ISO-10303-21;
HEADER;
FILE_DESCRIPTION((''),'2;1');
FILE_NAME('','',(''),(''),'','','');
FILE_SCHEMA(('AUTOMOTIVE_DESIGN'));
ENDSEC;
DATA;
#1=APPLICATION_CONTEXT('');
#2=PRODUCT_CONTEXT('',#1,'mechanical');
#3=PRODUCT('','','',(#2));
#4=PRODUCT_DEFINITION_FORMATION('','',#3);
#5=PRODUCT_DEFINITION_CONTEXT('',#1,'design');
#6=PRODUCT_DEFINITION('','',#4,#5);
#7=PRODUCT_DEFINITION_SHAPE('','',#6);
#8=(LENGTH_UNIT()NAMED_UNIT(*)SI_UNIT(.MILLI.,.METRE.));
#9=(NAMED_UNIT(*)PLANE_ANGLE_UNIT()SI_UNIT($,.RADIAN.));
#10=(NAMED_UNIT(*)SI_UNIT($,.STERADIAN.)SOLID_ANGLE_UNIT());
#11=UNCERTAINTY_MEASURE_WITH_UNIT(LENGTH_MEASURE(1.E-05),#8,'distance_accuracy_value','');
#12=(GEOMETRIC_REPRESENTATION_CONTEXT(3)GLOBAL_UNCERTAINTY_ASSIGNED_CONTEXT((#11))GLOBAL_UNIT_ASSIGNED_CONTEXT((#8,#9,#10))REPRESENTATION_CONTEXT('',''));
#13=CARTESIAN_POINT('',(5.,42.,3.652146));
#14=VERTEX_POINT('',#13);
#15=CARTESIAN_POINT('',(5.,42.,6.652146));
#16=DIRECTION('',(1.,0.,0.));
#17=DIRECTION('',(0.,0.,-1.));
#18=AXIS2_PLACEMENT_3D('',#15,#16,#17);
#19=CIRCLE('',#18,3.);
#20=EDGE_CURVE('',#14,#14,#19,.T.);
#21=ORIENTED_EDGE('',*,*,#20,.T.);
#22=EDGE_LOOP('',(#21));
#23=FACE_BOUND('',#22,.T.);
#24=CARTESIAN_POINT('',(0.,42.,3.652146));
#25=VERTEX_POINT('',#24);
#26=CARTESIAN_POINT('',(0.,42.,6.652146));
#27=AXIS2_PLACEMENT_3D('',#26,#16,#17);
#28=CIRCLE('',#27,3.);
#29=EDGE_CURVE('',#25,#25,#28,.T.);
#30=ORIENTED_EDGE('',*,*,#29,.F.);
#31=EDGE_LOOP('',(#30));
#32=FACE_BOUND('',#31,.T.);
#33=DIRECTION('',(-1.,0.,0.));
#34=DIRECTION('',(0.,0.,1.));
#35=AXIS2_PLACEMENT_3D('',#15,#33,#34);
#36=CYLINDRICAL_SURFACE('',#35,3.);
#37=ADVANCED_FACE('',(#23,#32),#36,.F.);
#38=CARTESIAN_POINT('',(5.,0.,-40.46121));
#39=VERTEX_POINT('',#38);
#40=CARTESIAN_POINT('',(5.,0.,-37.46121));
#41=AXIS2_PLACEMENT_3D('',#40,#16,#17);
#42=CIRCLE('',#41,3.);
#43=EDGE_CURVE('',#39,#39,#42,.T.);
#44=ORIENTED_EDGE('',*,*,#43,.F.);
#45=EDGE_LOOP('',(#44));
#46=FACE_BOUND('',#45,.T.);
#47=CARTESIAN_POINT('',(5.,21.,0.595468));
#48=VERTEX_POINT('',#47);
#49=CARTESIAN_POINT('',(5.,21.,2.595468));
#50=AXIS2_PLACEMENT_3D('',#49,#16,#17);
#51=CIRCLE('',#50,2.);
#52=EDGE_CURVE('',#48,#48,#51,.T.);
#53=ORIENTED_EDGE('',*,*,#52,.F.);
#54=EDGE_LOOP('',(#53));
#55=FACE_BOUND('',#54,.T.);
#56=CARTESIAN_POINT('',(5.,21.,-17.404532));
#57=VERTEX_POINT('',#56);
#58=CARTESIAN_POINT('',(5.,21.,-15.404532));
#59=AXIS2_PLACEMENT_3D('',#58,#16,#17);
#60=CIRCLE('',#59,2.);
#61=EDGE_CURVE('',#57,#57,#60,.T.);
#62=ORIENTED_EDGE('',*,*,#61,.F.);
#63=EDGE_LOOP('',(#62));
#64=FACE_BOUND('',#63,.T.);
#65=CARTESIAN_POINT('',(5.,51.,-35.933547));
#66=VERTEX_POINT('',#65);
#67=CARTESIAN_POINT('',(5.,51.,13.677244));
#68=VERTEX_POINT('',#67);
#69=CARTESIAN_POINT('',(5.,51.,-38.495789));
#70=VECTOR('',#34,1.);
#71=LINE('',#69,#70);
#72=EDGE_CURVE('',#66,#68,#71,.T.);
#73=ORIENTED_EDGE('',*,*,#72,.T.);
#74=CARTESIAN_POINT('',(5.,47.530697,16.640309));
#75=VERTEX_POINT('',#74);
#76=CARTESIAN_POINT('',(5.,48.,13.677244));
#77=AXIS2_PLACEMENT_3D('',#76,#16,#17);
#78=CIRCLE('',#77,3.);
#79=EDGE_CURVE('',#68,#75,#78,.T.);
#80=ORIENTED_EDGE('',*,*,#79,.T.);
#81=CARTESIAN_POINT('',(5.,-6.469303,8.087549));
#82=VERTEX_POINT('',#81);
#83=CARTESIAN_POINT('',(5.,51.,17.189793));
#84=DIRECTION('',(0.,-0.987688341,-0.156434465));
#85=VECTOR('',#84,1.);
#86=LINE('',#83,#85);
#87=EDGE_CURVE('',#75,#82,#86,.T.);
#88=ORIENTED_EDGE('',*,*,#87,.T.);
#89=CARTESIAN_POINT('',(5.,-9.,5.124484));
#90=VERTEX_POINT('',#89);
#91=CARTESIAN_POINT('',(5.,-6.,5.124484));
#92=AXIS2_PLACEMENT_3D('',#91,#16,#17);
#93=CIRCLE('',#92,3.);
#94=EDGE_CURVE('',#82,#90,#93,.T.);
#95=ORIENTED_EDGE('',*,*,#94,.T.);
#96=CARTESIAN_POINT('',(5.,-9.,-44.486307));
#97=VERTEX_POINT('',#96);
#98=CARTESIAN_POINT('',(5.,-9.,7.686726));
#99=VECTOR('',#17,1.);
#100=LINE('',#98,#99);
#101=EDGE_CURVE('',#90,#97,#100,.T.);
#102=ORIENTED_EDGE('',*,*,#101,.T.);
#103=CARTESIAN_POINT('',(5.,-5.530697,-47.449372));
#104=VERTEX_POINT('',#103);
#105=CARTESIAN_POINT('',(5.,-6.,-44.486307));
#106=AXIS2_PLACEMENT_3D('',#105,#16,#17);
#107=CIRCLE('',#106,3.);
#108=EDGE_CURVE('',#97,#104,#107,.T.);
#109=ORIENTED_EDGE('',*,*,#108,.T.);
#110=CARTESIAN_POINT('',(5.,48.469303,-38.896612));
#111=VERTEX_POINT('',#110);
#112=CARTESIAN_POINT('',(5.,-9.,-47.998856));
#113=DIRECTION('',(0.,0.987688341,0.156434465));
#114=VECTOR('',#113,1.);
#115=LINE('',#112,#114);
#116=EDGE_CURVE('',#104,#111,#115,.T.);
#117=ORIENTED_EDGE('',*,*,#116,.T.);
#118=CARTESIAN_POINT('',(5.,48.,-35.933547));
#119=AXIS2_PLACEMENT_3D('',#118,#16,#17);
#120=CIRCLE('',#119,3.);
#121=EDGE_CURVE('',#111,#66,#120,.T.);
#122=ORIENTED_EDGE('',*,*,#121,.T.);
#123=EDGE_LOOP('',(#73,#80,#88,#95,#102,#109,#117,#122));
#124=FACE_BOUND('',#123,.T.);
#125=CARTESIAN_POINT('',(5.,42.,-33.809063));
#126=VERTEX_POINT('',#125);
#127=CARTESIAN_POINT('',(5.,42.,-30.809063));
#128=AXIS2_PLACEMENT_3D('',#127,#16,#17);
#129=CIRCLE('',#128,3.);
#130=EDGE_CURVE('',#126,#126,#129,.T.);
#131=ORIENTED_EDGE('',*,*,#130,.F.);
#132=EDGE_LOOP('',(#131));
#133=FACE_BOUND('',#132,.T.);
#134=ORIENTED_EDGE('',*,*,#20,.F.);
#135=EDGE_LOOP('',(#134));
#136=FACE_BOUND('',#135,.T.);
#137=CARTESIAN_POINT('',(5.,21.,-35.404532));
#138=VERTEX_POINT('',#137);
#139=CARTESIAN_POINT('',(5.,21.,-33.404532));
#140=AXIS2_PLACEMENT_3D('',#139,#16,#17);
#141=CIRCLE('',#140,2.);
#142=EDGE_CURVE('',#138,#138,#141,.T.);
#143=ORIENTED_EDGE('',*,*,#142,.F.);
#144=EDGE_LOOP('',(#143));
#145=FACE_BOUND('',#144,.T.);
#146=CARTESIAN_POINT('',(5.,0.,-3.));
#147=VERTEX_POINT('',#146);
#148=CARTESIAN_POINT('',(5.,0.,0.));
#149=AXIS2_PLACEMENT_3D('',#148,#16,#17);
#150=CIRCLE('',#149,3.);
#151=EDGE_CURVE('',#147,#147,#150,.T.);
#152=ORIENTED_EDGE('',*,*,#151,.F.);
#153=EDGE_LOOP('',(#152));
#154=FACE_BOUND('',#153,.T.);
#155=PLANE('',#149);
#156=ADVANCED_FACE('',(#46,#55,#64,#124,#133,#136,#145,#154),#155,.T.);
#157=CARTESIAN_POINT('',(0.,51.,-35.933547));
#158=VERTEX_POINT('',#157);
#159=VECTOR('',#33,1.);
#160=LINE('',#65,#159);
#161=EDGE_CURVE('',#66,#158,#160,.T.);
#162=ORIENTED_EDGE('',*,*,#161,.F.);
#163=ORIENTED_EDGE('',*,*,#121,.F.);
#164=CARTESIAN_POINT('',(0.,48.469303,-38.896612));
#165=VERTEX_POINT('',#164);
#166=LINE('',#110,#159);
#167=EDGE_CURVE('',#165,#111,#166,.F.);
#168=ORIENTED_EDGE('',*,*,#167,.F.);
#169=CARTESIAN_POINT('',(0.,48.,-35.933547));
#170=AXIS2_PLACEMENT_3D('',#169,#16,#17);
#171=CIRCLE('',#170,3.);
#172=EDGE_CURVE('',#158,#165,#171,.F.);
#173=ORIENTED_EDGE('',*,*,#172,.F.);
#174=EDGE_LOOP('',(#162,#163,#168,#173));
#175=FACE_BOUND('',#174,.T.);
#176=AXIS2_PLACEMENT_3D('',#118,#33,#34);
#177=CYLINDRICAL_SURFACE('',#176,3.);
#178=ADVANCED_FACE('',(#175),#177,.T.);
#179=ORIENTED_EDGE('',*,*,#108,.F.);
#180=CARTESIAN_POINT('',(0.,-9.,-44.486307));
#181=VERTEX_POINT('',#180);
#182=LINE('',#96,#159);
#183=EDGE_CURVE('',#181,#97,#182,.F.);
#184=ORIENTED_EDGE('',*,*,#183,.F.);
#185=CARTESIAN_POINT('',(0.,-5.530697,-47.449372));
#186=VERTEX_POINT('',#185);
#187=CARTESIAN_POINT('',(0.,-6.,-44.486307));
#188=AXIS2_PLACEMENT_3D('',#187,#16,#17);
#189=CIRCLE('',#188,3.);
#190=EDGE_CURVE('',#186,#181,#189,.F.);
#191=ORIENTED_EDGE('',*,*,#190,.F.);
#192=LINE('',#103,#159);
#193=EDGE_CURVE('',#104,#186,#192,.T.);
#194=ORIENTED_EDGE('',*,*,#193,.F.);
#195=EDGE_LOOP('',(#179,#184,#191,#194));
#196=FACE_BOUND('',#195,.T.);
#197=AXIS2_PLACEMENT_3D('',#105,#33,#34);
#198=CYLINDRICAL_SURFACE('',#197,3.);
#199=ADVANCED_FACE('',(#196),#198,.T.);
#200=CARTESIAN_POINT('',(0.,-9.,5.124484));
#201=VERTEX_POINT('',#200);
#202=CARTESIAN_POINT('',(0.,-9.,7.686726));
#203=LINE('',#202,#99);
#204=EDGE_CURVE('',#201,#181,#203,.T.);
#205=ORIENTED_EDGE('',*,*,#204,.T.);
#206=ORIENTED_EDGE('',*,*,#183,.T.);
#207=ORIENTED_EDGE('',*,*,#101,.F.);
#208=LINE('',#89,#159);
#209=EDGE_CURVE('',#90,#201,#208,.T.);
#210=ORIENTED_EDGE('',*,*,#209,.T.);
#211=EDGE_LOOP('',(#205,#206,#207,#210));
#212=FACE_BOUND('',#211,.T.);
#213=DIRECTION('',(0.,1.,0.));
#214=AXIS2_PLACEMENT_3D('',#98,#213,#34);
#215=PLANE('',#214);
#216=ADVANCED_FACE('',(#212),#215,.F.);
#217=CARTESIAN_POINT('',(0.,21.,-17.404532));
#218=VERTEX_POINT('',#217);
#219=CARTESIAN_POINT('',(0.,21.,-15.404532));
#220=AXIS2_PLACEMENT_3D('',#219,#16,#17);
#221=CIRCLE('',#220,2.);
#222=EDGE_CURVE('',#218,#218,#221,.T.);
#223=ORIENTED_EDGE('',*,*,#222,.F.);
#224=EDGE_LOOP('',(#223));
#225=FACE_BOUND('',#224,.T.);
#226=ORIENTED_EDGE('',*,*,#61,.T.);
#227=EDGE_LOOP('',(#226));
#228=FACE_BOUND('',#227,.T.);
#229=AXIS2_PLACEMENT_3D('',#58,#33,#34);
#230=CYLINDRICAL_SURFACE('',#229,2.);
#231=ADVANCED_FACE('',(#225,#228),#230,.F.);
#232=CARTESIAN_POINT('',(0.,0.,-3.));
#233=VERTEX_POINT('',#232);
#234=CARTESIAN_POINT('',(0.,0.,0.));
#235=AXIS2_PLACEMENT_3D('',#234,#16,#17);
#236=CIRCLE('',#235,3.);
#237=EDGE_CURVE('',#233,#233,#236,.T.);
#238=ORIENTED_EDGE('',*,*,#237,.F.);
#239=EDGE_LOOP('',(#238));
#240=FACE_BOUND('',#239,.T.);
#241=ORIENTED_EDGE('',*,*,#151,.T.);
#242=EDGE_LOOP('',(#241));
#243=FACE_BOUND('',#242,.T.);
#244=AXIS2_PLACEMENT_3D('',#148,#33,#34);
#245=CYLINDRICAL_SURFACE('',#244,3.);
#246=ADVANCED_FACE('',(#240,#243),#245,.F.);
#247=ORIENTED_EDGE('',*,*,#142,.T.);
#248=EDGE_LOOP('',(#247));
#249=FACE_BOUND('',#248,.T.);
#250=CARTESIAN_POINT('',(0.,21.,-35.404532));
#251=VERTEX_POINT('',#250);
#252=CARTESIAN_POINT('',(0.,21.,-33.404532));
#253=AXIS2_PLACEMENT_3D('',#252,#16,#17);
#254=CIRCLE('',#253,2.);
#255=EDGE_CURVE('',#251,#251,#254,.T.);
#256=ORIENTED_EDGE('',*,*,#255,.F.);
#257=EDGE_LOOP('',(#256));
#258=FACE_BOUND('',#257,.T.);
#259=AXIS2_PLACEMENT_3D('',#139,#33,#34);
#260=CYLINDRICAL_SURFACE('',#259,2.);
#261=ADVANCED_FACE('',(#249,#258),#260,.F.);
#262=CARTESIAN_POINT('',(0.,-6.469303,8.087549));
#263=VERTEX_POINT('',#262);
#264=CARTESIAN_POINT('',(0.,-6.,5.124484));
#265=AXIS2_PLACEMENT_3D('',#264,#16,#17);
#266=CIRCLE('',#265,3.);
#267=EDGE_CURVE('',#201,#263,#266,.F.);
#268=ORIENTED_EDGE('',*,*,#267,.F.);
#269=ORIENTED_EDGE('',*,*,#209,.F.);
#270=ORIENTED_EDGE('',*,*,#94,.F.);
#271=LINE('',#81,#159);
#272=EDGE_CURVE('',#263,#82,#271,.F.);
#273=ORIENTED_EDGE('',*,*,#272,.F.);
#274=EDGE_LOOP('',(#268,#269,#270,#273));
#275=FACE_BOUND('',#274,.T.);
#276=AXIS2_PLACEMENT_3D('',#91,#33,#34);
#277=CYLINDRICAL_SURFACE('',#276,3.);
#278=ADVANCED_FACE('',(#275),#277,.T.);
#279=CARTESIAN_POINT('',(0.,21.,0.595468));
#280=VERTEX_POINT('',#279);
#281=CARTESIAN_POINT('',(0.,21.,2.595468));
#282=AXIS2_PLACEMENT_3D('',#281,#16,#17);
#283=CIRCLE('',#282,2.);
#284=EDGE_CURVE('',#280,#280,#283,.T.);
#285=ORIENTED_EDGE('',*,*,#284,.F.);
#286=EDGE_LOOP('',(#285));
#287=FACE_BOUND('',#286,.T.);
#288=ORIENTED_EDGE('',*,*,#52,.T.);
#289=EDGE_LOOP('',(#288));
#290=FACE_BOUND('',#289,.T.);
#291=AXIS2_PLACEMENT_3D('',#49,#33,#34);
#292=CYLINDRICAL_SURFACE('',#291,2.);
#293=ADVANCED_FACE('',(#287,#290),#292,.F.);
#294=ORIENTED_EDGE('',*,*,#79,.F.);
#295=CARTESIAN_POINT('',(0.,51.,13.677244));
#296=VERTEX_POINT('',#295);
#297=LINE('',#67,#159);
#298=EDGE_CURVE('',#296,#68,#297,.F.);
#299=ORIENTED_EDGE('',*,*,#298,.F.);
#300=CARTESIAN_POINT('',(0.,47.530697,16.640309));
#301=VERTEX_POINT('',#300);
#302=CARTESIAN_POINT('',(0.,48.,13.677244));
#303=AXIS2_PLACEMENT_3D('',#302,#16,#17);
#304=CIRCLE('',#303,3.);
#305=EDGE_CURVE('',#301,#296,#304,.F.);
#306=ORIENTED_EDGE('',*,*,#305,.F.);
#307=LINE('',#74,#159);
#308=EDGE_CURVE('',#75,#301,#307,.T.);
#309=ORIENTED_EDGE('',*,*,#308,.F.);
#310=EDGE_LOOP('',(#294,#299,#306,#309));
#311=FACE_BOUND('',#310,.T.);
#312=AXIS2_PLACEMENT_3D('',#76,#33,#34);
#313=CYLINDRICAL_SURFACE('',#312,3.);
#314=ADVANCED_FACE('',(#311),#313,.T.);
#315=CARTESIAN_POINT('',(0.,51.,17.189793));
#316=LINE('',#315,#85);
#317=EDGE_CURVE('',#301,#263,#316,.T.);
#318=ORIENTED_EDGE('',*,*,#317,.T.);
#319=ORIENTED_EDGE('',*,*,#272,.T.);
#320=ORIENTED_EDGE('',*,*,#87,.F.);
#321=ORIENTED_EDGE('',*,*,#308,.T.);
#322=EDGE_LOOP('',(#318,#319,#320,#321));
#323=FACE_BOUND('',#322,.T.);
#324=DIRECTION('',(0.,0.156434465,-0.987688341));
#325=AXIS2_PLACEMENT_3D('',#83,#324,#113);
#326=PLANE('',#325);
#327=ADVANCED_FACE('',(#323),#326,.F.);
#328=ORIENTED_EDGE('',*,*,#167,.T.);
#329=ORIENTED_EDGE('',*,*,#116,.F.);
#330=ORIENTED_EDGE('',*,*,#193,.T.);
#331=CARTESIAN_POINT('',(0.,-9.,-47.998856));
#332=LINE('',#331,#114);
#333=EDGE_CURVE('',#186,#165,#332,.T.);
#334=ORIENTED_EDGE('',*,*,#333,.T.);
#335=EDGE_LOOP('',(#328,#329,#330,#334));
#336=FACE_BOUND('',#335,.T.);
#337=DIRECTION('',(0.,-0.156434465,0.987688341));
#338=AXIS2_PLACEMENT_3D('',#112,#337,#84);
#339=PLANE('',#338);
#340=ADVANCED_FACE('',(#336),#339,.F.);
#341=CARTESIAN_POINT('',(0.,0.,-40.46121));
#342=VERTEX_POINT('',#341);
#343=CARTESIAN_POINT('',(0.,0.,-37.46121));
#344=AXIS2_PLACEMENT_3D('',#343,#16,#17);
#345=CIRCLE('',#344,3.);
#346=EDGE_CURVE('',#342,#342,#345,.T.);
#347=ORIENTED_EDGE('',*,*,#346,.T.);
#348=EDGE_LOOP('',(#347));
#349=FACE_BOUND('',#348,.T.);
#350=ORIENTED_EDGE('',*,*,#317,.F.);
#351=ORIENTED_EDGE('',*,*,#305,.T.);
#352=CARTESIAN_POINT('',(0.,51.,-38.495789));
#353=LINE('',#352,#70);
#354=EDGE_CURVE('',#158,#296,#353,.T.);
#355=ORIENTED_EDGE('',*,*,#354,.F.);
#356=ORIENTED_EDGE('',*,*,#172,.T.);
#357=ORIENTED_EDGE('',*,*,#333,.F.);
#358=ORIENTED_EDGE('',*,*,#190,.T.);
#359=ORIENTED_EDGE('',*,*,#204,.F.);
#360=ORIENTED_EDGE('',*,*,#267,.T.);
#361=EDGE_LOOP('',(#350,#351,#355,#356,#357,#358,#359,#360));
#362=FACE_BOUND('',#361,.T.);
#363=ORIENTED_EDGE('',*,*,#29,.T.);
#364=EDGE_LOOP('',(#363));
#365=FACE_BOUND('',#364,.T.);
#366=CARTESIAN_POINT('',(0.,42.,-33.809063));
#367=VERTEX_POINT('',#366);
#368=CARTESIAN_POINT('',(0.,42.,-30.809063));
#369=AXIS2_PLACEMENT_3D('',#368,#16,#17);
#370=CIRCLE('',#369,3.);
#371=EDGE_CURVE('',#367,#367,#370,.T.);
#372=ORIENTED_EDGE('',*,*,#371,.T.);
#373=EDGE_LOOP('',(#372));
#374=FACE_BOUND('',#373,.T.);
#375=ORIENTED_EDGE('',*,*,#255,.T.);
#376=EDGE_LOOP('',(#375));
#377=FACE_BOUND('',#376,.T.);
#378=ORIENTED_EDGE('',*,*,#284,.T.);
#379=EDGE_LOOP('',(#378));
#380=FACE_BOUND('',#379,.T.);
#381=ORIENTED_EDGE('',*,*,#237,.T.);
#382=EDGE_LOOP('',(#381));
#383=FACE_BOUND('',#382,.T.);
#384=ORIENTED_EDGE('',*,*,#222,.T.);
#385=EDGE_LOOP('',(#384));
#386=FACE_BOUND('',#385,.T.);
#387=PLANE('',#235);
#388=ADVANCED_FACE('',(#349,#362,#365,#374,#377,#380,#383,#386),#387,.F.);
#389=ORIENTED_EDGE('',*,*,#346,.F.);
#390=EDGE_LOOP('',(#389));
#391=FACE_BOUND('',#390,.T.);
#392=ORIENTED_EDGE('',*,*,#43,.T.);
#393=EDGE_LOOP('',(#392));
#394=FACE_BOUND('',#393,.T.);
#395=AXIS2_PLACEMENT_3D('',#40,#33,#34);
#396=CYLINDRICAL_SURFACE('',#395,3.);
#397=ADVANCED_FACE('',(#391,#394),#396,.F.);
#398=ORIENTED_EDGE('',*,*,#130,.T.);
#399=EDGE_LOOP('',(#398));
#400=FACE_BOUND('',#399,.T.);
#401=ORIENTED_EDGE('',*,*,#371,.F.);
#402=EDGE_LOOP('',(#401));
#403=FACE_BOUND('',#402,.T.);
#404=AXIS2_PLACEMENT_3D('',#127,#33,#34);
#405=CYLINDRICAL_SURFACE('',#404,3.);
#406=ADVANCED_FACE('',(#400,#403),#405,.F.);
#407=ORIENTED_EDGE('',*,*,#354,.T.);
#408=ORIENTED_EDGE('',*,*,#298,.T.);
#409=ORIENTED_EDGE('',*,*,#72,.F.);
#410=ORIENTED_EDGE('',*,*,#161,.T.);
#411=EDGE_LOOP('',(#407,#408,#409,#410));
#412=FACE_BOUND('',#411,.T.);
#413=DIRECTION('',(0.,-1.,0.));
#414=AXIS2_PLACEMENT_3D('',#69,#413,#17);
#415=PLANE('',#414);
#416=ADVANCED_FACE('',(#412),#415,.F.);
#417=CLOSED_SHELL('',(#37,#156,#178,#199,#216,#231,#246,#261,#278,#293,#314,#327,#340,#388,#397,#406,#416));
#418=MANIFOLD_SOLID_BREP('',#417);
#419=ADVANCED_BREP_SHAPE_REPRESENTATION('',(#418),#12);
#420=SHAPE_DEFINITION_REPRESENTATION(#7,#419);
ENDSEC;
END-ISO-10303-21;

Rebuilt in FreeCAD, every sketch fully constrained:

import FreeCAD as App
import Part
import Sketcher
Q = App.Units.Quantity


def edges_at(feature, points):
    """Names of the edges that pass closest to the given points."""
    edges = feature.Shape.Edges
    near = lambda p: min(range(len(edges)), key=lambda i: edges[i].distToShape(Part.Vertex(*p))[0])
    return sorted({f"Edge{near(p) + 1}" for p in points})

doc = App.newDocument("Part")
body = doc.addObject("PartDesign::Body", "Body")

# Sketch on YZ plane
sketch1 = body.newObject("Sketcher::SketchObject", "Sketch")
sketch1.AttachmentSupport = (doc.getObject("YZ_Plane"), [""])
sketch1.MapMode = "FlatFace"
sketch1.addGeometry([
    Part.LineSegment(App.Vector(-9, 7.7, 0), App.Vector(-9, -48, 0)),  # 0
    Part.LineSegment(App.Vector(-9, -48, 0), App.Vector(51, -38.5, 0)),  # 1
    Part.LineSegment(App.Vector(51, -38.5, 0), App.Vector(51, 17.2, 0)),  # 2
    Part.LineSegment(App.Vector(51, 17.2, 0), App.Vector(-9, 7.7, 0)),  # 3
    Part.Circle(App.Vector(0, 0, 0), App.Vector(0, 0, 1), 3),  # 4
    Part.Circle(App.Vector(0, -37.5, 0), App.Vector(0, 0, 1), 3),  # 5
    Part.Circle(App.Vector(21, 2.6, 0), App.Vector(0, 0, 1), 2),  # 6
    Part.Circle(App.Vector(42, 6.7, 0), App.Vector(0, 0, 1), 3),  # 7
    Part.Circle(App.Vector(21, -15.4, 0), App.Vector(0, 0, 1), 2),  # 8
    Part.Circle(App.Vector(21, -33.4, 0), App.Vector(0, 0, 1), 2),  # 9
    Part.Circle(App.Vector(42, -30.8, 0), App.Vector(0, 0, 1), 3),  # 10
], False)
sketch1.addConstraint([
    Sketcher.Constraint("Coincident", 0, 2, 1, 1),
    Sketcher.Constraint("Coincident", 1, 2, 2, 1),
    Sketcher.Constraint("Coincident", 2, 2, 3, 1),
    Sketcher.Constraint("Coincident", 3, 2, 0, 1),
    Sketcher.Constraint("Vertical", 0),
    Sketcher.Constraint("Vertical", 2),
    Sketcher.Constraint("Coincident", 4, 3, -1, 1),
    Sketcher.Constraint("Equal", 4, 5),
    Sketcher.Constraint("Equal", 5, 7),
    Sketcher.Constraint("Equal", 6, 8),
    Sketcher.Constraint("Equal", 8, 9),
    Sketcher.Constraint("Equal", 7, 10),
    Sketcher.Constraint("PointOnObject", 5, 3, -2),
    Sketcher.Constraint("Parallel", 1, 3),
    Sketcher.Constraint("Vertical", 6, 3, 8, 3),
    Sketcher.Constraint("Vertical", 8, 3, 9, 3),
    Sketcher.Constraint("Vertical", 7, 3, 10, 3),
    Sketcher.Constraint("Diameter", 4, 6.0),
    Sketcher.Constraint("Diameter", 6, 4.0),
    Sketcher.Constraint("Angle", 1, Q("9 deg")),
    Sketcher.Constraint("DistanceX", -1, 1, 6, 3, 21.0),
    Sketcher.Constraint("DistanceX", -1, 1, 7, 3, 42.0),
    Sketcher.Constraint("DistanceX", 0, 2, -1, 1, 9.0),
    Sketcher.Constraint("DistanceX", -1, 1, 1, 2, 51.0),
    Sketcher.Constraint("DistanceY", 8, 3, 6, 3, 18.0),
    Sketcher.Constraint("DistanceY", 9, 3, 8, 3, 18.0),
    Sketcher.Constraint("DistanceY", 0, 2, 0, 1, 55.685582),
    Sketcher.Constraint("DistanceY", 5, 3, -1, 1, 37.46121),
    Sketcher.Constraint("DistanceY", -1, 1, 6, 3, 2.595468),
    Sketcher.Constraint("DistanceY", 1, 2, -1, 1, 38.495789),
    Sketcher.Constraint("DistanceY", 6, 3, 7, 3, 4.056678),
    Sketcher.Constraint("DistanceY", 9, 3, 10, 3, 2.595468),
])
pad1 = body.newObject("PartDesign::Pad", "Pad")
pad1.Profile = sketch1
pad1.Length = 5
doc.recompute()

fillet = body.newObject("PartDesign::Fillet", "Fillet")
fillet.Base = (pad1, edges_at(pad1, [
    (2.5, 51, 17.19),
    (2.5, 51, -38.496),
    (2.5, -9, -47.999),
    (2.5, -9, 7.687),
]))
fillet.Radius = 3

doc.recompute()
